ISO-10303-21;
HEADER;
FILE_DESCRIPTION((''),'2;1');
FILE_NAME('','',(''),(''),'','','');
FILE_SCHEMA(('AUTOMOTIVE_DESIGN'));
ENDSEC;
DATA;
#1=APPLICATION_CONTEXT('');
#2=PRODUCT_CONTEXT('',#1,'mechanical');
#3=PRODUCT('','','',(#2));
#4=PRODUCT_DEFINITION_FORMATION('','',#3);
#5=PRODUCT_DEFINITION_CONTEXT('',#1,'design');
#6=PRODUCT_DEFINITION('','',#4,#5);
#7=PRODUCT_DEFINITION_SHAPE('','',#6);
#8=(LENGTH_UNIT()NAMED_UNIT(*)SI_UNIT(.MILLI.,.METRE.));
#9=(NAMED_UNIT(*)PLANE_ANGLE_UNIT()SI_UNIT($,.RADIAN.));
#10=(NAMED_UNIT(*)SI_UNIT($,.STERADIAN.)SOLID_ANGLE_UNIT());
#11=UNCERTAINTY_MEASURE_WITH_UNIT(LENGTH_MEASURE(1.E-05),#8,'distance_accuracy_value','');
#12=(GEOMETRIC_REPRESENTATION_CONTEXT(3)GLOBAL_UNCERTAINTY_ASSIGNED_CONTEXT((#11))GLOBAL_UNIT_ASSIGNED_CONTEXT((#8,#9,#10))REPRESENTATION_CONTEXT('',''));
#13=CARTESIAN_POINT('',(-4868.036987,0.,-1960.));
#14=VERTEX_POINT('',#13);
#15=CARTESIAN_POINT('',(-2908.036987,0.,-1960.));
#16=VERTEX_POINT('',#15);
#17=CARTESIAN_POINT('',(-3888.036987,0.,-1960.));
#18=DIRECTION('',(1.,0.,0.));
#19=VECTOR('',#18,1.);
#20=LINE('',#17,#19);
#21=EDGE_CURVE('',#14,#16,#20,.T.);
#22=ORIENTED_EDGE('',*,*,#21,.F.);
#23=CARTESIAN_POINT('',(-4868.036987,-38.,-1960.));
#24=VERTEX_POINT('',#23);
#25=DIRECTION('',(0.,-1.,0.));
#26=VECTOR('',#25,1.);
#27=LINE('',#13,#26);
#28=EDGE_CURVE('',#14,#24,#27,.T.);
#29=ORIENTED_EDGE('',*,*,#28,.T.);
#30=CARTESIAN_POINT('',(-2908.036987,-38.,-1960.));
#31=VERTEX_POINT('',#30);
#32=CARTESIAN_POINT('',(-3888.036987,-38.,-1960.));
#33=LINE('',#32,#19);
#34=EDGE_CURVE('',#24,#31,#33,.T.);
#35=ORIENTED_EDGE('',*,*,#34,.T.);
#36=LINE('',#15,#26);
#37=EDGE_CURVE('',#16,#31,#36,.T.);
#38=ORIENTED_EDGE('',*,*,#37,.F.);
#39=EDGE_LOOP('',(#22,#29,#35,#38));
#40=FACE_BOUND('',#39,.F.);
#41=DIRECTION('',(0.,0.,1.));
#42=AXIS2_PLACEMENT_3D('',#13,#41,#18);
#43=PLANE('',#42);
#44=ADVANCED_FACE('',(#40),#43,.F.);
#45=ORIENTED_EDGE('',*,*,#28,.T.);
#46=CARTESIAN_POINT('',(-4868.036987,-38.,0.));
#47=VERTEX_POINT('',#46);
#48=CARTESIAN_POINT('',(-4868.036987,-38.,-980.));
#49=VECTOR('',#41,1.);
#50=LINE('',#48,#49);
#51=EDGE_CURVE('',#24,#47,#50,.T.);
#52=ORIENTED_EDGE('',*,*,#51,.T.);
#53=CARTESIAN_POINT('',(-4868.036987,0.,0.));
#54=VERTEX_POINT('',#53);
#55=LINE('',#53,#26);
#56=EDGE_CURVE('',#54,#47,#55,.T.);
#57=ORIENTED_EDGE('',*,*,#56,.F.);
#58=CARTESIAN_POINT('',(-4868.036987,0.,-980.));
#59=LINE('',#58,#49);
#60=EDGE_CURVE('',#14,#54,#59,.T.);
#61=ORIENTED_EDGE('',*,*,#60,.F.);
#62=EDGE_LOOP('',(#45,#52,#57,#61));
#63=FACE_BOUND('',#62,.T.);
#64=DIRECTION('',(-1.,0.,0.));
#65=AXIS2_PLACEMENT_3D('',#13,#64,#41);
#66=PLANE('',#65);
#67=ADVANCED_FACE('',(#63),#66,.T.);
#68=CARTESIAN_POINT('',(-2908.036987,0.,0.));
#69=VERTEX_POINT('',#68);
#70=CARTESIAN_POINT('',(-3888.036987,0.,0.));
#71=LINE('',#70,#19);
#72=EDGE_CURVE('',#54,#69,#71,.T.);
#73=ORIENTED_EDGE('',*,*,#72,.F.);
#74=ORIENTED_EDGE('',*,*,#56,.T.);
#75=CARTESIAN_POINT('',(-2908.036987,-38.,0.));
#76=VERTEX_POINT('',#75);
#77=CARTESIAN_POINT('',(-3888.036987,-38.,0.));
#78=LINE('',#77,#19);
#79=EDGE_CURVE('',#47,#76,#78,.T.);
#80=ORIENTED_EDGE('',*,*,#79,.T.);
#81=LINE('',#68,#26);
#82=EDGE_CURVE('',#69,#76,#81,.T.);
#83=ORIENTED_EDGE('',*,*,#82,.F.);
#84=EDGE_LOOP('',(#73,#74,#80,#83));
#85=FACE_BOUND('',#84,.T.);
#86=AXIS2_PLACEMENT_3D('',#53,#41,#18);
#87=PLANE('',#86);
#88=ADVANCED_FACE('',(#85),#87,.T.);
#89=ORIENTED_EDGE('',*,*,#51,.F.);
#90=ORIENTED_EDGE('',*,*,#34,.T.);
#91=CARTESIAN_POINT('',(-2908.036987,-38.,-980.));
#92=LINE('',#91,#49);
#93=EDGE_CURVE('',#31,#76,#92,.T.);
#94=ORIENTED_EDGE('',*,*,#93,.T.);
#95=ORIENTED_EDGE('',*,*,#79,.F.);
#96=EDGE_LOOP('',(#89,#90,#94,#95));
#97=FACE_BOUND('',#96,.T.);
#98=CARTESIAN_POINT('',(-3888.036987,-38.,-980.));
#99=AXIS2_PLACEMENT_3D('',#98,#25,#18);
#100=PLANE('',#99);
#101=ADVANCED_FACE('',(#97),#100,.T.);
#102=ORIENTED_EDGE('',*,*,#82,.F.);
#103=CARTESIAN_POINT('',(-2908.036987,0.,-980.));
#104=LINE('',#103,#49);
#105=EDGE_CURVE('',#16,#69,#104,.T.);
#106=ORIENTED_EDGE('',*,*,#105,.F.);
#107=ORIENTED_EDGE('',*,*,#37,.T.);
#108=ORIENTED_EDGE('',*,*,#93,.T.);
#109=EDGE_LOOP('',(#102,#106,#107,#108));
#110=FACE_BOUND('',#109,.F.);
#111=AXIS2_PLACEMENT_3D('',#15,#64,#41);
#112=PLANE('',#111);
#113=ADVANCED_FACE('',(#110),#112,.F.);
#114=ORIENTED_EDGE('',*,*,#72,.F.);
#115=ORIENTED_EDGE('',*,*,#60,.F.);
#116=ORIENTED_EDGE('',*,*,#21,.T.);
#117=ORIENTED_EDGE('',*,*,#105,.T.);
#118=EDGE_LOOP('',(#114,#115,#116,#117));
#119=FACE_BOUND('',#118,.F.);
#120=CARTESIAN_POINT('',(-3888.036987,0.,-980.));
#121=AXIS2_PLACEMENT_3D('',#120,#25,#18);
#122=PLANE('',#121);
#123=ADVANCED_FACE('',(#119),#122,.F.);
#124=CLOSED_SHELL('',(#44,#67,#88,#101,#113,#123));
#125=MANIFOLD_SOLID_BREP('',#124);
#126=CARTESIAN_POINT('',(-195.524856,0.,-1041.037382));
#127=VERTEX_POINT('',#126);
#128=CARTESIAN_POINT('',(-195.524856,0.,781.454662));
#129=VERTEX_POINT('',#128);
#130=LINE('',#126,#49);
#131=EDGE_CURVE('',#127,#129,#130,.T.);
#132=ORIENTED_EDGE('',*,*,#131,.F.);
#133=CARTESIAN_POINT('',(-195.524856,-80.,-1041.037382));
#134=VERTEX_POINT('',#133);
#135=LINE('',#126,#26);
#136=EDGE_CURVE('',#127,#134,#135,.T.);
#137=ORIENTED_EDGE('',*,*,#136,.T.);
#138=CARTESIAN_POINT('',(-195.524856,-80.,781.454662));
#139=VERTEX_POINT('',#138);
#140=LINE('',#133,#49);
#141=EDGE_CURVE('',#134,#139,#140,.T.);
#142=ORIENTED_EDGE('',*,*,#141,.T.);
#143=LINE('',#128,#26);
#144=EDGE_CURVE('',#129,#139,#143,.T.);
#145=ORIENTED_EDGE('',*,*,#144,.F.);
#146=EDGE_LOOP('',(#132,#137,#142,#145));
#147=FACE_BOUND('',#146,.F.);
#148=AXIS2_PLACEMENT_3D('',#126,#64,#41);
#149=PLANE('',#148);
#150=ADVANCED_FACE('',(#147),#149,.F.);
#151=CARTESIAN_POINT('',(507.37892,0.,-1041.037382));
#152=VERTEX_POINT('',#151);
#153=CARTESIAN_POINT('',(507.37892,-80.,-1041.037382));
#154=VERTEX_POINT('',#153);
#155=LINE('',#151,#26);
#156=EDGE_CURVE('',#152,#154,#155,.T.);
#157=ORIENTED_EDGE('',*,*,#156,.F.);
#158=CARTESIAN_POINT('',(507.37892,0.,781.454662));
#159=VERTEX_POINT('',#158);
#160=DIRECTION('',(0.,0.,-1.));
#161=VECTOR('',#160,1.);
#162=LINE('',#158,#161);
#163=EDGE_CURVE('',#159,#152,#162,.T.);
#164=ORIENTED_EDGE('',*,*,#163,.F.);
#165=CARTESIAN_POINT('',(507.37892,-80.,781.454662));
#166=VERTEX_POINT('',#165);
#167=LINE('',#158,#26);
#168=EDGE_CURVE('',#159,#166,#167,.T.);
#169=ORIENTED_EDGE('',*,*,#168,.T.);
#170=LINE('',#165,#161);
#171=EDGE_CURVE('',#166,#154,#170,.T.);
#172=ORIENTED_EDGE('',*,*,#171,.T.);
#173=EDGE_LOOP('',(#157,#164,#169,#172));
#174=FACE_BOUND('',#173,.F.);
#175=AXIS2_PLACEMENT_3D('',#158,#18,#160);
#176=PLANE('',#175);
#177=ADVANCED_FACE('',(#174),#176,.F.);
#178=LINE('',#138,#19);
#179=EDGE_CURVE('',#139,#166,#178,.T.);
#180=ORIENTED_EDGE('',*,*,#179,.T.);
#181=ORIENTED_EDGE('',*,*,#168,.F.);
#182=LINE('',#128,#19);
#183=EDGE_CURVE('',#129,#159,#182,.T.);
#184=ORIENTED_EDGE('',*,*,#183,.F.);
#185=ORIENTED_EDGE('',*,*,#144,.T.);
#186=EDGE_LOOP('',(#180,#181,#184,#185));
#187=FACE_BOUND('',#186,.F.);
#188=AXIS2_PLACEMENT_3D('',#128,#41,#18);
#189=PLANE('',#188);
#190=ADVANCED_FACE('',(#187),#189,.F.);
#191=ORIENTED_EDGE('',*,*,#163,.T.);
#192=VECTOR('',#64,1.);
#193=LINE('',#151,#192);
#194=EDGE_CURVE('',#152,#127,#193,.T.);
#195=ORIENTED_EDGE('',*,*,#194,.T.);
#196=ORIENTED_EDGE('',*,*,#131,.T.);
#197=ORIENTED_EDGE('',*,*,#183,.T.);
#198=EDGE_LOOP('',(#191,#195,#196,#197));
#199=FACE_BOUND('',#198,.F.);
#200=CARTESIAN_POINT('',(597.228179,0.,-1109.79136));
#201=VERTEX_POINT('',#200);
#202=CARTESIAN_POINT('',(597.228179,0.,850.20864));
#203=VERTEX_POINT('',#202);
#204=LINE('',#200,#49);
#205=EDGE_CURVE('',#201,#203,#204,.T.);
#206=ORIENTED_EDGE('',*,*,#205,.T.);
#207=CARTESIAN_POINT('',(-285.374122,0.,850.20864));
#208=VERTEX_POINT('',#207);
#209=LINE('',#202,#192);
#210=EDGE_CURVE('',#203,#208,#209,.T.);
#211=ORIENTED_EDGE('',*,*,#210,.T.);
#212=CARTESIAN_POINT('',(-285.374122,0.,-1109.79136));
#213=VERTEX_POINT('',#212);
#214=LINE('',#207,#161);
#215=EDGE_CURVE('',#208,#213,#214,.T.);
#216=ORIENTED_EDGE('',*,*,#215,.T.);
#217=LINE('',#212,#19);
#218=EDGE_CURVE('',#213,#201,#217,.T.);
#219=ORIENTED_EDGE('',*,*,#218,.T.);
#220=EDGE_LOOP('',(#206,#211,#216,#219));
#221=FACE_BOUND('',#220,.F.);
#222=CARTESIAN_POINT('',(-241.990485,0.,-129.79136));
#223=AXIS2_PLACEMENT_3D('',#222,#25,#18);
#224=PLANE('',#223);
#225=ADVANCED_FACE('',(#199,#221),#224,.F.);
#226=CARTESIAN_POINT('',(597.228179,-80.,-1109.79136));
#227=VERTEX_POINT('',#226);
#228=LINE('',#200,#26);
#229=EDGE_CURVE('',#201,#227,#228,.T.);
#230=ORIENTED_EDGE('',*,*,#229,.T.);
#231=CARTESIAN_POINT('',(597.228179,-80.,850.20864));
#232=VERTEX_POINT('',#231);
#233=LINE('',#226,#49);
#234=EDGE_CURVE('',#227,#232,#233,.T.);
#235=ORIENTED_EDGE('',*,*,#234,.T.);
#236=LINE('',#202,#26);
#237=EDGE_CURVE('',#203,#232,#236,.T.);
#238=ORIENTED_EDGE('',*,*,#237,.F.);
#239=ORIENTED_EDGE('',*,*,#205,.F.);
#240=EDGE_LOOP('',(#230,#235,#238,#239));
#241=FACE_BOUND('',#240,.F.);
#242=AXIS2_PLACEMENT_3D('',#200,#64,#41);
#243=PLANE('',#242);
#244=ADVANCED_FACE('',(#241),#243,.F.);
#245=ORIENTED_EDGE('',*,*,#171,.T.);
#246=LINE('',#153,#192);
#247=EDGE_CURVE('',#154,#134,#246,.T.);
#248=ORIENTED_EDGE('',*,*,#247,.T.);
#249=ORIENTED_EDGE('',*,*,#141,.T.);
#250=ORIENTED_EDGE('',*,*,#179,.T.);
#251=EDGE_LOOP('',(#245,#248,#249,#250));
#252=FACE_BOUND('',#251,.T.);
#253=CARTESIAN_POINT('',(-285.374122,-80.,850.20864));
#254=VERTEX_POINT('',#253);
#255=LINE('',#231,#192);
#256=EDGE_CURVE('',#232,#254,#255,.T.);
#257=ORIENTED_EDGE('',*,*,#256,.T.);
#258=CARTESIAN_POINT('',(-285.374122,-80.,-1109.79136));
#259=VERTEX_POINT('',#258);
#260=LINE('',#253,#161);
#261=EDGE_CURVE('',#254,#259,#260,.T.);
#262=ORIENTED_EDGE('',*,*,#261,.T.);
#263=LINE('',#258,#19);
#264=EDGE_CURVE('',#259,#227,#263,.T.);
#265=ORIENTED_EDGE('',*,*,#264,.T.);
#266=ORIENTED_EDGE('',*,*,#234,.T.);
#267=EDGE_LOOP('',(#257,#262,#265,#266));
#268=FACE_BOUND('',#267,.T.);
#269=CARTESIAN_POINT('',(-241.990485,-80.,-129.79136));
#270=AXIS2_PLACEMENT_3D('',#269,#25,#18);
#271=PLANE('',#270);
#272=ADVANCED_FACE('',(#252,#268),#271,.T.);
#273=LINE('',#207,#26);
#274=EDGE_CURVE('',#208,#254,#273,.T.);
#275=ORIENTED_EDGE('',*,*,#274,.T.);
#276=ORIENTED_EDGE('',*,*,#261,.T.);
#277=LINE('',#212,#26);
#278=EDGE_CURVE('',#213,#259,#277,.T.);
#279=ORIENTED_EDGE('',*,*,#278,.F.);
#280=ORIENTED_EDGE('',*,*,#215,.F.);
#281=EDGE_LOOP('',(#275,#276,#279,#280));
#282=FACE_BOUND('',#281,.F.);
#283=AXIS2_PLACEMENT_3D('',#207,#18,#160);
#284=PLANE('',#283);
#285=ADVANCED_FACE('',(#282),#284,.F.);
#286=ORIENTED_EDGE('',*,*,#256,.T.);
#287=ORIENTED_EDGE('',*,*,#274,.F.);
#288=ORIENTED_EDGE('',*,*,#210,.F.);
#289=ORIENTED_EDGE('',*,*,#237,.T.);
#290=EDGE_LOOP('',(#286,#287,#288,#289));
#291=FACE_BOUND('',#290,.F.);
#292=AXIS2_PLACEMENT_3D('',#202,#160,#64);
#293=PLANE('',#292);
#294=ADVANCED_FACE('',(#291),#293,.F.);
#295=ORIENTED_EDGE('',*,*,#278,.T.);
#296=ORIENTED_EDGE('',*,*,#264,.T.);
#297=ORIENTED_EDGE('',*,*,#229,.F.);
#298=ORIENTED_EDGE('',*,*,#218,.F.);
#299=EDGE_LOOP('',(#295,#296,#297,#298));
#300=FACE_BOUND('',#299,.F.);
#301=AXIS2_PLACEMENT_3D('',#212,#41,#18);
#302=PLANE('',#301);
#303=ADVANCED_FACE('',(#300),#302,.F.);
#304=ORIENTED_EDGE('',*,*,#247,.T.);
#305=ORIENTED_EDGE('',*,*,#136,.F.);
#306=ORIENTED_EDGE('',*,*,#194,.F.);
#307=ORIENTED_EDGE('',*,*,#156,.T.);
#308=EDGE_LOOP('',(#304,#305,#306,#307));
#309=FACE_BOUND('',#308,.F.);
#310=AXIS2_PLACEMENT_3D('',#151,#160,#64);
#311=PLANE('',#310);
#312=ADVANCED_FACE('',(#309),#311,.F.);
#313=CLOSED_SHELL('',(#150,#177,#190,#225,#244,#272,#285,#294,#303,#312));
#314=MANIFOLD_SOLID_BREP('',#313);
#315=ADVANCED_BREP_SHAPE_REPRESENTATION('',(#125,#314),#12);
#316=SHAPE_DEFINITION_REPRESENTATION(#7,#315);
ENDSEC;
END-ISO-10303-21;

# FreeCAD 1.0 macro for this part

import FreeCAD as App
import Part
import Sketcher

V = App.Vector
Q = App.Units.Quantity


def add_polygon(sketch, points):
    """Adds a closed chain of lines whose ends are joined by coincident constraints."""
    first, n = sketch.GeometryCount, len(points)
    for a, b in zip(points, points[1:] + points[:1]):
        sketch.addGeometry(Part.LineSegment(App.Vector(*a, 0), App.Vector(*b, 0)), False)
    for i in range(n):
        sketch.addConstraint(Sketcher.Constraint("Coincident", first + i, 2, first + (i + 1) % n, 1))

doc = App.newDocument("Part")
body = doc.addObject("PartDesign::Body", "Body")

# Sketch on XZ plane
sketch1 = body.newObject("Sketcher::SketchObject", "Sketch")
sketch1.AttachmentSupport = (doc.getObject("XZ_Plane"), [""])
sketch1.MapMode = "FlatFace"
add_polygon(sketch1, [(-4868, 0), (-4868, -1960), (-2908, -1960), (-2908, 0)])  # lines 0-3
sketch1.addConstraint([
    Sketcher.Constraint("Vertical", 0),
    Sketcher.Constraint("Horizontal", 1),
    Sketcher.Constraint("Vertical", 2),
    Sketcher.Constraint("Horizontal", 3),
    Sketcher.Constraint("PointOnObject", 2, 2, -1),
    Sketcher.Constraint("Equal", 3, 0),
    Sketcher.Constraint("DistanceX", 1, 1, 1, 2, Q("1960 mm")),
    Sketcher.Constraint("DistanceX", 0, 2, -1, 1, Q("4868.036987 mm")),
])
pad1 = body.newObject("PartDesign::Pad", "Pad")
pad1.Profile = sketch1
pad1.Length = 38
body2 = doc.addObject("PartDesign::Body", "Body001")

# Sketch on XZ plane
sketch2 = body2.newObject("Sketcher::SketchObject", "Sketch001")
sketch2.AttachmentSupport = (doc.getObject("XZ_Plane001"), [""])
sketch2.MapMode = "FlatFace"
add_polygon(sketch2, [(-285, 850), (-285, -1110), (597, -1110), (597, 850)])  # lines 0-3
add_polygon(sketch2, [(507, -1041), (-196, -1041), (-196, 781), (507, 781)])  # lines 4-7
sketch2.addConstraint([
    Sketcher.Constraint("Vertical", 0),
    Sketcher.Constraint("Horizontal", 1),
    Sketcher.Constraint("Vertical", 2),
    Sketcher.Constraint("Horizontal", 3),
    Sketcher.Constraint("Horizontal", 4),
    Sketcher.Constraint("Vertical", 5),
    Sketcher.Constraint("Horizontal", 6),
    Sketcher.Constraint("Vertical", 7),
    Sketcher.Constraint("DistanceY", 0, 2, 0, 1, Q("1960 mm")),
    Sketcher.Constraint("DistanceX", 1, 1, 1, 2, Q("882.602301 mm")),
    Sketcher.Constraint("DistanceX", 4, 2, 4, 1, Q("702.903776 mm")),
    Sketcher.Constraint("DistanceY", 5, 1, 5, 2, Q("1822.492044 mm")),
    Sketcher.Constraint("DistanceX", 0, 2, -1, 1, Q("285.374122 mm")),
    Sketcher.Constraint("DistanceY", 0, 2, -1, 1, Q("1109.79136 mm")),
    Sketcher.Constraint("DistanceY", 4, 2, -1, 1, Q("1041.037382 mm")),
    Sketcher.Constraint("DistanceX", -1, 1, 6, 2, Q("507.37892 mm")),
])
pad2 = body2.newObject("PartDesign::Pad", "Pad001")
pad2.Profile = sketch2
pad2.Length = 80

doc.recompute()
